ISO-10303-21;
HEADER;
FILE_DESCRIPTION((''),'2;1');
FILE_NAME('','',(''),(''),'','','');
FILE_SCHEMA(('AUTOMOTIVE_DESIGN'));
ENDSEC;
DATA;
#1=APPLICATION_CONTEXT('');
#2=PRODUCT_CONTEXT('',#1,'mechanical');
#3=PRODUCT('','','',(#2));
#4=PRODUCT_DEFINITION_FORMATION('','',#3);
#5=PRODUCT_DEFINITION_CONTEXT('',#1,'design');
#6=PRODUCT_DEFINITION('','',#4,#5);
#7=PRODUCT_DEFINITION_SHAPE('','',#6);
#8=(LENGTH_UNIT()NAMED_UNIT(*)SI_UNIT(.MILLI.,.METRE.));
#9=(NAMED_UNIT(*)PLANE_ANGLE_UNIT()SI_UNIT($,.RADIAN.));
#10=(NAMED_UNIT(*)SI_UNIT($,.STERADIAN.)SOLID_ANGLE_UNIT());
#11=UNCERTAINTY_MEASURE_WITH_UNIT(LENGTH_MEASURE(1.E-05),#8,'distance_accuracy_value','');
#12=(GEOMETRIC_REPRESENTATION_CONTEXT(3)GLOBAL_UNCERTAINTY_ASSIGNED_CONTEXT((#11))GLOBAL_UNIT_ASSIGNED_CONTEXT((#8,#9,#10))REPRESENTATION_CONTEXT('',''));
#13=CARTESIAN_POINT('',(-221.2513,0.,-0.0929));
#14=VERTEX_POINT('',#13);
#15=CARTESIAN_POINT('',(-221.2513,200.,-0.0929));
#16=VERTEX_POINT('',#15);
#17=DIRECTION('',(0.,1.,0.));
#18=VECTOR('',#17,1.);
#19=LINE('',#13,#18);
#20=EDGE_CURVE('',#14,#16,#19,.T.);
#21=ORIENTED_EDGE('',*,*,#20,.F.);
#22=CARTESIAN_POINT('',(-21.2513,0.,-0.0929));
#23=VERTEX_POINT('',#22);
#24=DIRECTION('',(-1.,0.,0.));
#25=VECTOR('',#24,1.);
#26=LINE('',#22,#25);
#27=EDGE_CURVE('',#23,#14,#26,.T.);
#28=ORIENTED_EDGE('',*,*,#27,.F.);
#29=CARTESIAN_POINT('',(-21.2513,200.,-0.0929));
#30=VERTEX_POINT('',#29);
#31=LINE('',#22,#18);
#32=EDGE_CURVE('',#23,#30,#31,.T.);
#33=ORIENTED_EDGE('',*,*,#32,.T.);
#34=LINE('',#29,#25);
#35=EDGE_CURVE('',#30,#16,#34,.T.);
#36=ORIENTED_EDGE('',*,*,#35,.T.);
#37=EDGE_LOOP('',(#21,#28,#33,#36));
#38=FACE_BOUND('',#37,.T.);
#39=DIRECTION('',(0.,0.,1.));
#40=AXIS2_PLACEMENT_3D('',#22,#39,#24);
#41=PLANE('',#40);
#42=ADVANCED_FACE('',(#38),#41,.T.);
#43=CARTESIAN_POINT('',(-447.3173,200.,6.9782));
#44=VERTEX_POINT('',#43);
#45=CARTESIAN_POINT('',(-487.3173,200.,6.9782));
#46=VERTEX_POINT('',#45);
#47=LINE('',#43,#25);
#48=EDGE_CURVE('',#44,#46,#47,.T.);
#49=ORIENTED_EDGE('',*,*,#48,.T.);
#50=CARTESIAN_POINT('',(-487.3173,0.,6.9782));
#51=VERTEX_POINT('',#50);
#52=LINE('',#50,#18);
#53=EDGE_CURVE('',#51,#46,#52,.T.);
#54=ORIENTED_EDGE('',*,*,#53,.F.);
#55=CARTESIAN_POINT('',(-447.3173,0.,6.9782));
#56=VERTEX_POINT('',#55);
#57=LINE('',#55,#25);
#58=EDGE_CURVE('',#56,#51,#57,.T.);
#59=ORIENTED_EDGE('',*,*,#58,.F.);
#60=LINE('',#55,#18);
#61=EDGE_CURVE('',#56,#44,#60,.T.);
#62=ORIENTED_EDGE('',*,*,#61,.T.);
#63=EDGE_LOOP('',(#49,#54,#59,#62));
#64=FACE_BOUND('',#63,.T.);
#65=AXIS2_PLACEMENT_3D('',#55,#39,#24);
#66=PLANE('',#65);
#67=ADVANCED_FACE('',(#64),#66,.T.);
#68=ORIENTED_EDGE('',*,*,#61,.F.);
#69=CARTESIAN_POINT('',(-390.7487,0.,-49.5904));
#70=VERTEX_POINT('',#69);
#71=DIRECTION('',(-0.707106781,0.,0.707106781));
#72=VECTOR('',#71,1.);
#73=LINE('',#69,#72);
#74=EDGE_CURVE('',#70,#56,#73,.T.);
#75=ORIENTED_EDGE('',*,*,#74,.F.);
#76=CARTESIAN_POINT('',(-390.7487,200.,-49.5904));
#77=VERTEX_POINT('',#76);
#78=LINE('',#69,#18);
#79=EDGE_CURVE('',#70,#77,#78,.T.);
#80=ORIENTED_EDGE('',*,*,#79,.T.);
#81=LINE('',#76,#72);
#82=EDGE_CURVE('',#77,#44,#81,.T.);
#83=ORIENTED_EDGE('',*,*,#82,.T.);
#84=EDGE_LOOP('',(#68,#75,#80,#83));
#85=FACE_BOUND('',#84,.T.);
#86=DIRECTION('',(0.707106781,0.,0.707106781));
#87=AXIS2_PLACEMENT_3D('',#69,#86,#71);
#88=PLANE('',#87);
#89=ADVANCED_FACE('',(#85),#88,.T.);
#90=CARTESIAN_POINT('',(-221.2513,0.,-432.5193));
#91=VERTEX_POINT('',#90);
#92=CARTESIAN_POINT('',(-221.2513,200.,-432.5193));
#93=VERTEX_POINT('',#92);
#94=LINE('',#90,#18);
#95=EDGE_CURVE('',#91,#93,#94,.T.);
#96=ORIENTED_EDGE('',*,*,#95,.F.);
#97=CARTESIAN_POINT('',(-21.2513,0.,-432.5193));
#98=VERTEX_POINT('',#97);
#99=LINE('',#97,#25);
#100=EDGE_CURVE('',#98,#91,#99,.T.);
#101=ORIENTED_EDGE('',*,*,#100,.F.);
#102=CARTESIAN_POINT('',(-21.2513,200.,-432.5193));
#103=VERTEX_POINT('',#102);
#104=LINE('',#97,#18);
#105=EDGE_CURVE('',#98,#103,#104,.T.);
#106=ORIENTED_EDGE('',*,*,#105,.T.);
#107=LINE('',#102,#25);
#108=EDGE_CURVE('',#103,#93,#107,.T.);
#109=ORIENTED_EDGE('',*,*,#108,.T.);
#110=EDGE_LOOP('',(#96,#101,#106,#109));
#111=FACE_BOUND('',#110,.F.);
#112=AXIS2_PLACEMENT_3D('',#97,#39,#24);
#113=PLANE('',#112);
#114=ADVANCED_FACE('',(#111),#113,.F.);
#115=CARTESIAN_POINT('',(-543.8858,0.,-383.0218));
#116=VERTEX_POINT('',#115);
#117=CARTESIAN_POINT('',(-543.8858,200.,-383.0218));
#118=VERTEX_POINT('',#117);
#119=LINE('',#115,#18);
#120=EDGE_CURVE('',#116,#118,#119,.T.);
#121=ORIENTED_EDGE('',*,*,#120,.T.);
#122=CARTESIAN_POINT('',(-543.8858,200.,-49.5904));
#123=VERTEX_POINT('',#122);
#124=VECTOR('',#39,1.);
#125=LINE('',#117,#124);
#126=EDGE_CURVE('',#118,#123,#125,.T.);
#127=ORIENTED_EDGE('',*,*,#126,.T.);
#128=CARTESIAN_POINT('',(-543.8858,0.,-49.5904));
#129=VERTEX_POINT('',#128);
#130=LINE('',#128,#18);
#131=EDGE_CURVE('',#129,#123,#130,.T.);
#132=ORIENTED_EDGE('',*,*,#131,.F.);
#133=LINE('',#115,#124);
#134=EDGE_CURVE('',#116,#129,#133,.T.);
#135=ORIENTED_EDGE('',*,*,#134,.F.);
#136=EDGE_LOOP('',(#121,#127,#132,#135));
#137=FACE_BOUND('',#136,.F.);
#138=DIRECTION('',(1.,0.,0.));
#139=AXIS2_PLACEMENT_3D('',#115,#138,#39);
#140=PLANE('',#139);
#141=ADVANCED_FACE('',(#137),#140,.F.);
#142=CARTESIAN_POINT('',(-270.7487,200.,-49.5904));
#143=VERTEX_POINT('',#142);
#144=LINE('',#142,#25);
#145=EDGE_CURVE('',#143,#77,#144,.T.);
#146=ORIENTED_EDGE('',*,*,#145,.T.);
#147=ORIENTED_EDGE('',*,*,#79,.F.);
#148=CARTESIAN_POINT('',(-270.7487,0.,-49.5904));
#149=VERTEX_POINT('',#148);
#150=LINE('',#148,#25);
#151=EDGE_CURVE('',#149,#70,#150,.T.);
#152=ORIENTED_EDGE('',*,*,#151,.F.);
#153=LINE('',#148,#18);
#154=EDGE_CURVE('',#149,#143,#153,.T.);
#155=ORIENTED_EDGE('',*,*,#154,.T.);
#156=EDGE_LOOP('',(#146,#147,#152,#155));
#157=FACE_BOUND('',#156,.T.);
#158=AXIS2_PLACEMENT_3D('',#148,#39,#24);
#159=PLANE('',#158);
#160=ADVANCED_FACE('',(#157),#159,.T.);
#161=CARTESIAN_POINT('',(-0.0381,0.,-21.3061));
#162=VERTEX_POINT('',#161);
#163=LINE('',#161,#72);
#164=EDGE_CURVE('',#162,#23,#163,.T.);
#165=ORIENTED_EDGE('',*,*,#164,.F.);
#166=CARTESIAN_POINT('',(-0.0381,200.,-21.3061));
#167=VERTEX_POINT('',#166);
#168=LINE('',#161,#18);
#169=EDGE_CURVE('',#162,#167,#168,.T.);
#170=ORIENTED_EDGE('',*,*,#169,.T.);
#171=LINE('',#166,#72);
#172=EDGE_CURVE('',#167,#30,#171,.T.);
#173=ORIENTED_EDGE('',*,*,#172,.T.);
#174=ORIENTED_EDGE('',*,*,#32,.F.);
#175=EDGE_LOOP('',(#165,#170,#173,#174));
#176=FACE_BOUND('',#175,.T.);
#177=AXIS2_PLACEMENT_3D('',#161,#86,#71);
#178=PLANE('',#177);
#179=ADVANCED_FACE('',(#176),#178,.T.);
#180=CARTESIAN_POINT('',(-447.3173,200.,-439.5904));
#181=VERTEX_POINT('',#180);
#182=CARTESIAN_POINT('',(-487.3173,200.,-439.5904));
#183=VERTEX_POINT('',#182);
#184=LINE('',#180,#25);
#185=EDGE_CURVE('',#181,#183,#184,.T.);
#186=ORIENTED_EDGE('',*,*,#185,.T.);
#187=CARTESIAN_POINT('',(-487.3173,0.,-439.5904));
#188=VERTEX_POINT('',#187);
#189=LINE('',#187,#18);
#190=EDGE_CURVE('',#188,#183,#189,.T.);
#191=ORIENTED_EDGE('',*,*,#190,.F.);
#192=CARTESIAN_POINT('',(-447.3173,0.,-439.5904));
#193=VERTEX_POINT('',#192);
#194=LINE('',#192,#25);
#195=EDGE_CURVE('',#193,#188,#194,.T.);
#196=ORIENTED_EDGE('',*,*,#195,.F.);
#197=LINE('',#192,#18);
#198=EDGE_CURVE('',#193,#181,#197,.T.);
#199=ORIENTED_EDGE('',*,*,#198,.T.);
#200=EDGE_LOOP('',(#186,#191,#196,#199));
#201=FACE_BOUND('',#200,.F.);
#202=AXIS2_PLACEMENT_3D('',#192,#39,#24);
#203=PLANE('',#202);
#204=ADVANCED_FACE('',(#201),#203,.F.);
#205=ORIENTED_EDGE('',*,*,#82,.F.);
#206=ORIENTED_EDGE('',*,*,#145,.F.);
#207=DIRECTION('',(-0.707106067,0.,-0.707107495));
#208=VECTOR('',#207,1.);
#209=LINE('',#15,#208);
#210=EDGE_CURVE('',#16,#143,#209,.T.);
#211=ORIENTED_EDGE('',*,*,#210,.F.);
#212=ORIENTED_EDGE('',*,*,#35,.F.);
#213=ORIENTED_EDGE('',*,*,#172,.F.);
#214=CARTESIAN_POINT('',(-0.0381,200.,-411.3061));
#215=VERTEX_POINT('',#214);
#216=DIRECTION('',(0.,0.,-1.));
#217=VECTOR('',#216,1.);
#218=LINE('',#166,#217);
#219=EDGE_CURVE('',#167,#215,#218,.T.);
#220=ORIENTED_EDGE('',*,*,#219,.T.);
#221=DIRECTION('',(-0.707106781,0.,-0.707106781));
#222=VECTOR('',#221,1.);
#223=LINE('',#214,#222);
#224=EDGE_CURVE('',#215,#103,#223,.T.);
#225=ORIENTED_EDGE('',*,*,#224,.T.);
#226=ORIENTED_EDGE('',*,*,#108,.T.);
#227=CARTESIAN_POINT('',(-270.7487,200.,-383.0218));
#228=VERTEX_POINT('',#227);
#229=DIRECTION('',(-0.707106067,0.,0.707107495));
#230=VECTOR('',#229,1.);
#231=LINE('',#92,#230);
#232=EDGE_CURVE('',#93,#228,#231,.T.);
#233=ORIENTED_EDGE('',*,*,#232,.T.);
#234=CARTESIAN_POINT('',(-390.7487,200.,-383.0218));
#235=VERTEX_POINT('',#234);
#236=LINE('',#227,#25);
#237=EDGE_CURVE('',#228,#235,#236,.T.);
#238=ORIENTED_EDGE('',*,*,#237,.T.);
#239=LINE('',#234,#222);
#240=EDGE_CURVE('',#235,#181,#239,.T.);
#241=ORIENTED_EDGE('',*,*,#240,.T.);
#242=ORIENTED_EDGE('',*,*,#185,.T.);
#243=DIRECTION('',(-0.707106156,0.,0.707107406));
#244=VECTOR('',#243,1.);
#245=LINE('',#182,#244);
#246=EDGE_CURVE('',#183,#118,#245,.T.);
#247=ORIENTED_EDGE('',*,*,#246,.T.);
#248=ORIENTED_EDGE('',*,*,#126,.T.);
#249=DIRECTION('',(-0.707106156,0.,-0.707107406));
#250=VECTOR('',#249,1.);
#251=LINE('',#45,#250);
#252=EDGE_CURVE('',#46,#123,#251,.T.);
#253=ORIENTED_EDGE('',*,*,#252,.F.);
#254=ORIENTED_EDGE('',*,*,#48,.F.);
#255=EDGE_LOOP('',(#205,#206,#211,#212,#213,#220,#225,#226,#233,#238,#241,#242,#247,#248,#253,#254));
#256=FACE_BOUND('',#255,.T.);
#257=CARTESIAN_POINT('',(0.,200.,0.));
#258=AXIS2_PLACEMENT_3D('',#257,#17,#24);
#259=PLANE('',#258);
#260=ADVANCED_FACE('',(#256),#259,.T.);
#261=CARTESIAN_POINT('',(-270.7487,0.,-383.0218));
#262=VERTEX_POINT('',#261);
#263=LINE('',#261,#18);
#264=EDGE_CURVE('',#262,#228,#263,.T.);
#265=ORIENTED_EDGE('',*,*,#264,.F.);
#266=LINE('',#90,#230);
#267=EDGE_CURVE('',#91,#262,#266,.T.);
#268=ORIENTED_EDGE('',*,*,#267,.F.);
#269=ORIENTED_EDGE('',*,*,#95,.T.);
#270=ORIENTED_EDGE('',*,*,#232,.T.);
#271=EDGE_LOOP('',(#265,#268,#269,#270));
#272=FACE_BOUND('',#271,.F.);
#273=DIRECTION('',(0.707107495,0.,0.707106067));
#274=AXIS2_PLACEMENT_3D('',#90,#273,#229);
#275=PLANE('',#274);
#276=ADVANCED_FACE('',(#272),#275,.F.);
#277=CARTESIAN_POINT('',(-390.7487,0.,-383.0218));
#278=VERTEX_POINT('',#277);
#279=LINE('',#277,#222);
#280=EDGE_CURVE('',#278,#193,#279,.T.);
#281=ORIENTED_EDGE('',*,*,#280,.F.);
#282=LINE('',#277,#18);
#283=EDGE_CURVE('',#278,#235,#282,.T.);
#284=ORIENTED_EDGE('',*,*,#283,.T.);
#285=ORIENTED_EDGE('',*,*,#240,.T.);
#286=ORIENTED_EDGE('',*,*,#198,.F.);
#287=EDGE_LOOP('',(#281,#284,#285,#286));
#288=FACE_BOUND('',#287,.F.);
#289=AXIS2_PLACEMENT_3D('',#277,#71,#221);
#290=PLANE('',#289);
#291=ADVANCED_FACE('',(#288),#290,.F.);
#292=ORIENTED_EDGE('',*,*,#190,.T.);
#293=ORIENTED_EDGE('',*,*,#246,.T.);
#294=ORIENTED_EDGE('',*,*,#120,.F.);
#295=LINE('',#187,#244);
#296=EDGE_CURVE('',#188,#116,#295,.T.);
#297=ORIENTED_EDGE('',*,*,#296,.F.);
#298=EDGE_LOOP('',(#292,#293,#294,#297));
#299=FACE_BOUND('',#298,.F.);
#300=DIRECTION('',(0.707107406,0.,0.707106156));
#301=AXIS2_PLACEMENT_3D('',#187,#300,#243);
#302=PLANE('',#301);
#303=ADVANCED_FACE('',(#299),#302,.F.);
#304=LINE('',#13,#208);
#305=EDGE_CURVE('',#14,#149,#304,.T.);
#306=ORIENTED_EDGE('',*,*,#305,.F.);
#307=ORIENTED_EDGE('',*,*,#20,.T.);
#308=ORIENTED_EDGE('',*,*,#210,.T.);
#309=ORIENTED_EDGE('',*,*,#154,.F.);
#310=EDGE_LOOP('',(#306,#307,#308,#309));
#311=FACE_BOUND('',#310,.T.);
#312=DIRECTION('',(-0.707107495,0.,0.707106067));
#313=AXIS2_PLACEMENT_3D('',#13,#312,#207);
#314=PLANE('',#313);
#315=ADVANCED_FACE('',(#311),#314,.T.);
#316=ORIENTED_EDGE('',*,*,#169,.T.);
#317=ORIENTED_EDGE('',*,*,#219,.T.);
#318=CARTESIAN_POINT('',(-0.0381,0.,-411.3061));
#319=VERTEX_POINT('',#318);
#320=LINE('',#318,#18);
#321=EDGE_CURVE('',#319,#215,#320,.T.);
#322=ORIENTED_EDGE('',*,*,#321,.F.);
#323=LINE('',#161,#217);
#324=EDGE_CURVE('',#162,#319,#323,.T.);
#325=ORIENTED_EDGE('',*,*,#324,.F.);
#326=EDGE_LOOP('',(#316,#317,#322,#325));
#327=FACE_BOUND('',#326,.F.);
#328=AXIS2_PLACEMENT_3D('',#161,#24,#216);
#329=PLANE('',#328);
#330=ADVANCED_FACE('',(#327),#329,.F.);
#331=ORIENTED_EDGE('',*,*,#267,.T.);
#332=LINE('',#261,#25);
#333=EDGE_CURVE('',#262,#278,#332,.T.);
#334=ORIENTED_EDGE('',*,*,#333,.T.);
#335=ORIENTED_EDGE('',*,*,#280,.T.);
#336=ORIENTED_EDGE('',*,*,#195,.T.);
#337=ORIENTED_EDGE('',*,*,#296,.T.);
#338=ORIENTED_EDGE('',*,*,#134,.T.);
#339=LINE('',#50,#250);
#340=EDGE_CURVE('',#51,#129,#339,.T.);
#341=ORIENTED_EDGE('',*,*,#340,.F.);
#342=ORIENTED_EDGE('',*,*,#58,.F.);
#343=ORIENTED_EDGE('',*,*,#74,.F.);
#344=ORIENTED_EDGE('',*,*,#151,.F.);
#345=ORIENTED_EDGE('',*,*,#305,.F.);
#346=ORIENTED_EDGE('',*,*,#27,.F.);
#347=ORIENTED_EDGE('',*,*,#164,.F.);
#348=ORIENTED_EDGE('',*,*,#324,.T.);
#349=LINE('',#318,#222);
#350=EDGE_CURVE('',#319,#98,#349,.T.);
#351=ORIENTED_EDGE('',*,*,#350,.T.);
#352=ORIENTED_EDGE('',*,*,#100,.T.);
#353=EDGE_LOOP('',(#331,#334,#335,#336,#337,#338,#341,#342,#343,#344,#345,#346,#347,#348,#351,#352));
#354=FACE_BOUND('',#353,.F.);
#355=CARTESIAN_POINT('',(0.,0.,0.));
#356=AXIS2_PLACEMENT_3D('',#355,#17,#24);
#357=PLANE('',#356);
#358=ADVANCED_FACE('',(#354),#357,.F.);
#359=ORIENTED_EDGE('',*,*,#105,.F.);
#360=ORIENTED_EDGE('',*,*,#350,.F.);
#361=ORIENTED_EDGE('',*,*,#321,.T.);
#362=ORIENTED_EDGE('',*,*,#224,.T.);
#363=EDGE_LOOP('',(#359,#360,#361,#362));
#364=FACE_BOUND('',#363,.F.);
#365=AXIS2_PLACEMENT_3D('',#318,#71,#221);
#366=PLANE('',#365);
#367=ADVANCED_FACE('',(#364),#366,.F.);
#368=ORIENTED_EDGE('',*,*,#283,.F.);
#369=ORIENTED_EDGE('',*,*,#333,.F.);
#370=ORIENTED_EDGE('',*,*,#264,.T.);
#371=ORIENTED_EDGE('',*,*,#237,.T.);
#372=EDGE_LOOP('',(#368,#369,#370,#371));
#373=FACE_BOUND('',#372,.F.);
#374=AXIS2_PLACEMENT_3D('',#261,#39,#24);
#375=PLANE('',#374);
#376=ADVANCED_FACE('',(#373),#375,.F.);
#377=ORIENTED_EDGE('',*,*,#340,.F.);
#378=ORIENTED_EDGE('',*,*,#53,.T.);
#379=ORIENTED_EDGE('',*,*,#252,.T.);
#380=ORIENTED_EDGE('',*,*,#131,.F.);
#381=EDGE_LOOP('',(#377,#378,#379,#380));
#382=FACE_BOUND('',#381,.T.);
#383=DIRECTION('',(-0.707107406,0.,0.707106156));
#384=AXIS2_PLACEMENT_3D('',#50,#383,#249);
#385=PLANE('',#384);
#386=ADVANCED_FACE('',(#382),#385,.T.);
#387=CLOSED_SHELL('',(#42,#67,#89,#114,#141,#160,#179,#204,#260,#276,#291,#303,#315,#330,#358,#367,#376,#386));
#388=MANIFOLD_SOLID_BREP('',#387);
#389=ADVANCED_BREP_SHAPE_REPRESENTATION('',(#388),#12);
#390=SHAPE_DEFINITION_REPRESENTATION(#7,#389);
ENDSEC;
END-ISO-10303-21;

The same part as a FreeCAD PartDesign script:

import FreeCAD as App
import Part
import Sketcher


def add_polygon(sketch, points):
    """Adds a closed chain of lines whose ends are joined by coincident constraints."""
    first, n = sketch.GeometryCount, len(points)
    for a, b in zip(points, points[1:] + points[:1]):
        sketch.addGeometry(Part.LineSegment(App.Vector(*a, 0), App.Vector(*b, 0)), False)
    for i in range(n):
        sketch.addConstraint(Sketcher.Constraint("Coincident", first + i, 2, first + (i + 1) % n, 1))

doc = App.newDocument("Part")
params = doc.addObject("Spreadsheet::Sheet", "Params")
for row, (alias, value) in enumerate([
    ("sketch1_width", "200 mm"),
    ("sketch1_width2", "120 mm"),
    ("sketch1_width3", "40 mm"),
    ("sketch1_height", "390 mm"),
    ("sketch1_length", "30 mm"),
    ("pad1_length", "200 mm"),
], start=1):
    params.set(f"A{row}", alias)
    params.set(f"B{row}", "=" + value)
    params.setAlias(f"B{row}", alias)

body = doc.addObject("PartDesign::Body", "Body")

sketch1 = doc.addObject("Sketcher::SketchObject", "Sketch")
body.addObject(sketch1)
sketch1.AttachmentSupport = (doc.XZ_Plane, [""])
sketch1.MapMode = "FlatFace"
add_polygon(sketch1, [(-21.2513, -0.0929), (-0.0381, -21.3061), (-0.0381, -411.3061), (-21.2513, -432.5193), (-221.2513, -432.5193), (-270.7487, -383.0218), (-390.7487, -383.0218), (-447.3173, -439.5904), (-487.3173, -439.5904), (-543.8858, -383.0218), (-543.8858, -49.5904), (-487.3173, 6.9782), (-447.3173, 6.9782), (-390.7487, -49.5904), (-270.7487, -49.5904), (-221.2513, -0.0929)])
sketch1.addConstraint([
    Sketcher.Constraint("Vertical", 1),
    Sketcher.Constraint("Horizontal", 3),
    Sketcher.Constraint("Horizontal", 5),
    Sketcher.Constraint("Horizontal", 7),
    Sketcher.Constraint("Vertical", 9),
    Sketcher.Constraint("Horizontal", 11),
    Sketcher.Constraint("Horizontal", 13),
    Sketcher.Constraint("Horizontal", 15),
    Sketcher.Constraint("Perpendicular", 0, 2),
    Sketcher.Constraint("Perpendicular", 2, 4),
    Sketcher.Constraint("Perpendicular", 4, 6),
    Sketcher.Constraint("Perpendicular", 6, 8),
    Sketcher.Constraint("Perpendicular", 8, 10),
    Sketcher.Constraint("Perpendicular", 10, 12),
    Sketcher.Constraint("Perpendicular", 12, 14),
    Sketcher.Constraint("Horizontal", 5, 2, 8, 2),
    Sketcher.Constraint("Horizontal", 9, 2, 12, 2),
    Sketcher.Constraint("Vertical", 7, 2, 10, 2),
    Sketcher.Constraint("Vertical", 6, 2, 11, 2),
    Sketcher.Constraint("Vertical", 5, 2, 12, 2),
    Sketcher.Constraint("Vertical", 4, 2, 13, 2),
    Sketcher.Constraint("Vertical", 3, 2, 14, 2),
    Sketcher.Constraint("Vertical", 2, 2, 15, 2),
    Sketcher.Constraint("DistanceX", 3, 2, 3, 1, 200.0),
    Sketcher.Constraint("DistanceX", 5, 2, 5, 1, 120.0),
    Sketcher.Constraint("DistanceX", 7, 2, 7, 1, 40.0),
    Sketcher.Constraint("DistanceY", 1, 2, 1, 1, 390.0),
    Sketcher.Constraint("Distance", 0, 30.0),
    Sketcher.Constraint("Distance", 4, 70.0),
    Sketcher.Constraint("Distance", 6, 80.0),
    Sketcher.Constraint("DistanceX", 0, 2, -1, 1, 0.038),
    Sketcher.Constraint("DistanceY", 0, 2, -1, 1, 21.306),
])
sketch1.setExpression("Constraints[39]", "Params.sketch1_width")
sketch1.setExpression("Constraints[40]", "Params.sketch1_width2")
sketch1.setExpression("Constraints[41]", "Params.sketch1_width3")
sketch1.setExpression("Constraints[42]", "Params.sketch1_height")
sketch1.setExpression("Constraints[43]", "Params.sketch1_length")
pad1 = doc.addObject("PartDesign::Pad", "Pad")
body.addObject(pad1)
pad1.Profile = sketch1
pad1.setExpression("Length", "Params.pad1_length")
pad1.Reversed = True

doc.recompute()
